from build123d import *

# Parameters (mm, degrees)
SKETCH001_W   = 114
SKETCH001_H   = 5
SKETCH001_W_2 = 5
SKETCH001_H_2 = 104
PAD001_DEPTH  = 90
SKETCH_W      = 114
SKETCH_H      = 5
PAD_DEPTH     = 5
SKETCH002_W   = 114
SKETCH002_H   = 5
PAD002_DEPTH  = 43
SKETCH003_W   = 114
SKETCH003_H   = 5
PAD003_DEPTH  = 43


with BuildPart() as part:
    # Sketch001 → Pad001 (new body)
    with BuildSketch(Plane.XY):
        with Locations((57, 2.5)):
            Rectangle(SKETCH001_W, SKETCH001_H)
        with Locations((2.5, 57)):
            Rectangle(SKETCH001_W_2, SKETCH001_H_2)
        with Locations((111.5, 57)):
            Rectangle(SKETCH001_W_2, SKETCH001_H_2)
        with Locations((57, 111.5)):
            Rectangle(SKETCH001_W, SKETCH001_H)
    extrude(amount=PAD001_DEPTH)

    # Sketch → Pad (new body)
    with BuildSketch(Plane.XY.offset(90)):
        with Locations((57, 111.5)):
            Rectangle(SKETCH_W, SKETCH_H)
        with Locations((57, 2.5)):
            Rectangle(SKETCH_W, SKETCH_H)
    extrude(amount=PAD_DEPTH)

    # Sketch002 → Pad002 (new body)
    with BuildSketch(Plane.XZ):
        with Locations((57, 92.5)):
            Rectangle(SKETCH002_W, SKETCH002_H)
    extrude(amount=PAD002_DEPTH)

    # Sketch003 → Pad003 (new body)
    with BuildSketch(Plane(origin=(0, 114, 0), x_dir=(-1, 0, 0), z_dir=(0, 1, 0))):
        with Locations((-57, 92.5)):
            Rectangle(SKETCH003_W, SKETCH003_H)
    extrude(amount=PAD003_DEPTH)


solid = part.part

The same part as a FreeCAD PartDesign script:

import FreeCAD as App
import Part
import Sketcher

V = App.Vector


def add_polygon(sketch, points):
    """Adds a closed chain of lines whose ends are joined by coincident constraints."""
    first, n = sketch.GeometryCount, len(points)
    for a, b in zip(points, points[1:] + points[:1]):
        sketch.addGeometry(Part.LineSegment(App.Vector(*a, 0), App.Vector(*b, 0)), False)
    for i in range(n):
        sketch.addConstraint(Sketcher.Constraint("Coincident", first + i, 2, first + (i + 1) % n, 1))

doc = App.newDocument("Part")
body = doc.addObject("PartDesign::Body", "Body")

sketch1 = body.newObject("Sketcher::SketchObject", "Sketch")
sketch1.AttachmentSupport = (doc.getObject("XY_Plane"), [""])
sketch1.MapMode = "FlatFace"
add_polygon(sketch1, [(0, 0), (114, 0), (114, 114), (0, 114)])
add_polygon(sketch1, [(109, 109), (109, 5), (5, 5), (5, 109)])
sketch1.addConstraint([
    Sketcher.Constraint("Horizontal", 0),
    Sketcher.Constraint("Vertical", 1),
    Sketcher.Constraint("Horizontal", 2),
    Sketcher.Constraint("Vertical", 3),
    Sketcher.Constraint("Vertical", 4),
    Sketcher.Constraint("Horizontal", 5),
    Sketcher.Constraint("Vertical", 6),
    Sketcher.Constraint("Horizontal", 7),
    Sketcher.Constraint("Coincident", 3, 2, -1, 1),
    Sketcher.Constraint("Equal", 2, 1),
    Sketcher.Constraint("Equal", 7, 4),
    Sketcher.Constraint("DistanceX", 0, 1, 0, 2, 114.0),
    Sketcher.Constraint("DistanceX", 5, 2, 5, 1, 104.0),
    Sketcher.Constraint("DistanceX", -1, 1, 4, 2, 109.0),
    Sketcher.Constraint("DistanceY", -1, 1, 4, 2, 5.0),
])
pad1 = body.newObject("PartDesign::Pad", "Pad")
pad1.Profile = sketch1
pad1.Length = 90

sketch2 = body.newObject("Sketcher::SketchObject", "Sketch001")
sketch2.AttachmentSupport = (doc.getObject("XY_Plane"), [""])
sketch2.MapMode = "FlatFace"
sketch2.AttachmentOffset = App.Placement(V(0, 0, 90), App.Rotation())
add_polygon(sketch2, [(0, 114), (0, 109), (114, 109), (114, 114)])
add_polygon(sketch2, [(0, 5), (0, 0), (114, 0), (114, 5)])
sketch2.addConstraint([
    Sketcher.Constraint("Vertical", 0),
    Sketcher.Constraint("Horizontal", 1),
    Sketcher.Constraint("Vertical", 2),
    Sketcher.Constraint("Horizontal", 3),
    Sketcher.Constraint("Vertical", 4),
    Sketcher.Constraint("Horizontal", 5),
    Sketcher.Constraint("Vertical", 6),
    Sketcher.Constraint("Horizontal", 7),
    Sketcher.Constraint("Coincident", 4, 2, -1, 1),
    Sketcher.Constraint("PointOnObject", 0, 2, -2),
    Sketcher.Constraint("Vertical", 2, 2, 5, 2),
    Sketcher.Constraint("Equal", 2, 4),
    Sketcher.Constraint("DistanceX", 1, 1, 1, 2, 114.0),
    Sketcher.Constraint("DistanceY", 0, 2, 0, 1, 5.0),
    Sketcher.Constraint("DistanceY", -1, 1, 0, 2, 109.0),
])
pad2 = body.newObject("PartDesign::Pad", "Pad001")
pad2.Profile = sketch2
pad2.Length = 5

sketch3 = body.newObject("Sketcher::SketchObject", "Sketch002")
sketch3.AttachmentSupport = (doc.getObject("XZ_Plane"), [""])
sketch3.MapMode = "FlatFace"
add_polygon(sketch3, [(0, 95), (0, 90), (114, 90), (114, 95)])
sketch3.addConstraint([
    Sketcher.Constraint("Vertical", 0),
    Sketcher.Constraint("Horizontal", 1),
    Sketcher.Constraint("Vertical", 2),
    Sketcher.Constraint("Horizontal", 3),
    Sketcher.Constraint("PointOnObject", 0, 2, -2),
    Sketcher.Constraint("DistanceX", 1, 1, 1, 2, 114.0),
    Sketcher.Constraint("DistanceY", 0, 2, 0, 1, 5.0),
    Sketcher.Constraint("DistanceY", -1, 1, 0, 2, 90.0),
])
pad3 = body.newObject("PartDesign::Pad", "Pad002")
pad3.Profile = sketch3
pad3.Length = 43

sketch4 = body.newObject("Sketcher::SketchObject", "Sketch003")
sketch4.AttachmentSupport = (doc.getObject("XZ_Plane"), [""])
sketch4.MapMode = "FlatFace"
sketch4.AttachmentOffset = App.Placement(V(0, 0, -114), App.Rotation())
add_polygon(sketch4, [(114, 95), (114, 90), (0, 90), (0, 95)])
sketch4.addConstraint([
    Sketcher.Constraint("Vertical", 0),
    Sketcher.Constraint("Horizontal", 1),
    Sketcher.Constraint("Vertical", 2),
    Sketcher.Constraint("Horizontal", 3),
    Sketcher.Constraint("PointOnObject", 1, 2, -2),
    Sketcher.Constraint("DistanceX", 1, 2, 1, 1, 114.0),
    Sketcher.Constraint("DistanceY", 0, 2, 0, 1, 5.0),
    Sketcher.Constraint("DistanceY", -1, 1, 0, 2, 90.0),
])
pad4 = body.newObject("PartDesign::Pad", "Pad003")
pad4.Profile = sketch4
pad4.Length = 43
pad4.Reversed = True

doc.recompute()
